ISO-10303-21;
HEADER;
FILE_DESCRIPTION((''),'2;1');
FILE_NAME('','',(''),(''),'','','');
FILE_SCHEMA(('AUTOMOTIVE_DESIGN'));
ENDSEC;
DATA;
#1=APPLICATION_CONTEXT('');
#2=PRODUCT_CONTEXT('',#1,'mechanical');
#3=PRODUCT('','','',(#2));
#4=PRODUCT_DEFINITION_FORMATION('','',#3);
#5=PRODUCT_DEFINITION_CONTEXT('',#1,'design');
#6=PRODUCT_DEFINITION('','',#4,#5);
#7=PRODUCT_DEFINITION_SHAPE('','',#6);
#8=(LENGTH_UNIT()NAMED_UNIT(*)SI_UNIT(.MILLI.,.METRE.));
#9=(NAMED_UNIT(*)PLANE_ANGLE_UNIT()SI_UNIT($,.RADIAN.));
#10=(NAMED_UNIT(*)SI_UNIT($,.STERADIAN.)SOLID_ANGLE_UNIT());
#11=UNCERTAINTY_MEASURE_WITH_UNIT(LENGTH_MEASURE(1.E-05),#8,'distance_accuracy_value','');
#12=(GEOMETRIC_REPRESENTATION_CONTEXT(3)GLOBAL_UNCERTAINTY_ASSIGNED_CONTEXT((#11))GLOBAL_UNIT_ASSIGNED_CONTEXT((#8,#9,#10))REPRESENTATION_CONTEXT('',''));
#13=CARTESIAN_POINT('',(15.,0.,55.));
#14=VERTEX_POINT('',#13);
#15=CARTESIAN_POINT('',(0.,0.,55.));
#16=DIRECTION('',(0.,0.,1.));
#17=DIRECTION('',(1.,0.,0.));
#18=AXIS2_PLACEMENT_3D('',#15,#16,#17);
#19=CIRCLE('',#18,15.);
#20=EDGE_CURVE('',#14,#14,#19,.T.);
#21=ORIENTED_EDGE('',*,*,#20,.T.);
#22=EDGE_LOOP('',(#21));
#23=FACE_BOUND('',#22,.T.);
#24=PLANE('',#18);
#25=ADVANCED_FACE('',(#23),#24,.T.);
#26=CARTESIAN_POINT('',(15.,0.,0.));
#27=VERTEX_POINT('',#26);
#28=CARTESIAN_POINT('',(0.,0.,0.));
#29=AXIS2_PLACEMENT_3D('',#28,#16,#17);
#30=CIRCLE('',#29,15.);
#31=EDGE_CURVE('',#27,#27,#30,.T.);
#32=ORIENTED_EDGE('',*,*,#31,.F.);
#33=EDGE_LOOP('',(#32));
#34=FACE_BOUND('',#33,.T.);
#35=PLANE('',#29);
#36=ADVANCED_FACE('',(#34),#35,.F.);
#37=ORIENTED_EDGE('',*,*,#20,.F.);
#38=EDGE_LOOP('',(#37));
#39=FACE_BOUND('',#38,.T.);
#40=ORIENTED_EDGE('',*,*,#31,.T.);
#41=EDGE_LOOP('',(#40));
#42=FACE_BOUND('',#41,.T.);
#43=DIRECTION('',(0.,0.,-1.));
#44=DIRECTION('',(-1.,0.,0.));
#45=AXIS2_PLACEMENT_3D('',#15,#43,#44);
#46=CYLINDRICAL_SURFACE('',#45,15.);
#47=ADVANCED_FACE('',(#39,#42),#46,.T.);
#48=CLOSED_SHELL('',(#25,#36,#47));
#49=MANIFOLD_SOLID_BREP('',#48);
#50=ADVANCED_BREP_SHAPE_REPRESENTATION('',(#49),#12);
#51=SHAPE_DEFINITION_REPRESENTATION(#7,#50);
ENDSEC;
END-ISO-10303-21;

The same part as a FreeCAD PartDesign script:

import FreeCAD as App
import Part
import Sketcher
from FreeCAD import Vector
Q = App.Units.Quantity

doc = App.newDocument("Part")
body = doc.addObject("PartDesign::Body", "Body")

# Sketch on XY plane
sketch1 = doc.addObject("Sketcher::SketchObject", "Sketch")
body.addObject(sketch1)
sketch1.AttachmentSupport = (doc.XY_Plane, [""])
sketch1.MapMode = "FlatFace"
sketch1.addGeometry(Part.Circle(Vector(0, 0, 0), Vector(0, 0, 1), 15), False)
sketch1.addConstraint(Sketcher.Constraint("Coincident", 0, 3, -1, 1))
sketch1.addConstraint(Sketcher.Constraint("Diameter", 0, Q("30 mm")))
pad1 = doc.addObject("PartDesign::Pad", "Pad")
body.addObject(pad1)
pad1.Profile = sketch1
pad1.Length = 55

doc.recompute()
